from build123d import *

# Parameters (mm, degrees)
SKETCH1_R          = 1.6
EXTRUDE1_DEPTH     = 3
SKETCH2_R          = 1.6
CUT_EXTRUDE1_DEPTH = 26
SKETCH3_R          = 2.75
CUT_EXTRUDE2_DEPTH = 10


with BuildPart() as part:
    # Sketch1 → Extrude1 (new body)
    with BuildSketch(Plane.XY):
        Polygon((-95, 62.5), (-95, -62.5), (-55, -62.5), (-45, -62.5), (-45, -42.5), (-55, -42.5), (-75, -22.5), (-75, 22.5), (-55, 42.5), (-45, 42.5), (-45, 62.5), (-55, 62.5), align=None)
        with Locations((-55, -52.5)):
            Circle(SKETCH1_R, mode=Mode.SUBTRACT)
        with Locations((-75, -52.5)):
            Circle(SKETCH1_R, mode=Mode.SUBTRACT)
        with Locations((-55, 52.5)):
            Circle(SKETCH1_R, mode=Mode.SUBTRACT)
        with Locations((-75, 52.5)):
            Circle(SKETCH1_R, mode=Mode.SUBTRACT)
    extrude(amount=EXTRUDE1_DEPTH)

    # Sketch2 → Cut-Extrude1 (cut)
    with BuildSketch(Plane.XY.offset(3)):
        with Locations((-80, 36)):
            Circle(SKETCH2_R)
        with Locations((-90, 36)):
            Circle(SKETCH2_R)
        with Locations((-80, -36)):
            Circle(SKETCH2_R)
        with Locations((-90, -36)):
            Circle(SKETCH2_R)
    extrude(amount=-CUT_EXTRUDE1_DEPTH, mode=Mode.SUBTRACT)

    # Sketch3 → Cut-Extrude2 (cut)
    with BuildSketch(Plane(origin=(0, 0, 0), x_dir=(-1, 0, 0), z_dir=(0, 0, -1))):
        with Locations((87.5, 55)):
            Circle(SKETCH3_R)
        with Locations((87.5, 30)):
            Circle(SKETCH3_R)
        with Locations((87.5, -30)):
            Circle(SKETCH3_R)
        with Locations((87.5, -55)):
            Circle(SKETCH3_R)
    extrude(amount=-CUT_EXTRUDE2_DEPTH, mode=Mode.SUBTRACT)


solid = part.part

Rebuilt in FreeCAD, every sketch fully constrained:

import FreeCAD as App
import Part
import Sketcher


def add_polygon(sketch, points):
    """Adds a closed chain of lines whose ends are joined by coincident constraints."""
    first, n = sketch.GeometryCount, len(points)
    for a, b in zip(points, points[1:] + points[:1]):
        sketch.addGeometry(Part.LineSegment(App.Vector(*a, 0), App.Vector(*b, 0)), False)
    for i in range(n):
        sketch.addConstraint(Sketcher.Constraint("Coincident", first + i, 2, first + (i + 1) % n, 1))

doc = App.newDocument("Part")
body = doc.addObject("PartDesign::Body", "Body")

# Sketch on XY plane
sketch1 = doc.addObject("Sketcher::SketchObject", "Sketch")
body.addObject(sketch1)
sketch1.AttachmentSupport = (doc.XY_Plane, [""])
sketch1.MapMode = "FlatFace"
add_polygon(sketch1, [(-95, 62.5), (-95, -62.5), (-45, -62.5), (-45, -42.5), (-55, -42.5), (-75, -22.5), (-75, 22.5), (-55, 42.5), (-45, 42.5), (-45, 62.5)])  # lines 0-9
sketch1.addGeometry(Part.Circle(App.Vector(-75, -52.5, 0), App.Vector(0, 0, 1), 1.6), False)  # 10
sketch1.addGeometry(Part.Circle(App.Vector(-55, -52.5, 0), App.Vector(0, 0, 1), 1.6), False)  # 11
sketch1.addGeometry(Part.Circle(App.Vector(-75, 52.5, 0), App.Vector(0, 0, 1), 1.6), False)  # 12
sketch1.addGeometry(Part.Circle(App.Vector(-55, 52.5, 0), App.Vector(0, 0, 1), 1.6), False)  # 13
sketch1.addConstraint([
    Sketcher.Constraint("Vertical", 0),
    Sketcher.Constraint("Horizontal", 1),
    Sketcher.Constraint("Vertical", 2),
    Sketcher.Constraint("Horizontal", 3),
    Sketcher.Constraint("Vertical", 5),
    Sketcher.Constraint("Horizontal", 7),
    Sketcher.Constraint("Vertical", 8),
    Sketcher.Constraint("Horizontal", 9),
    Sketcher.Constraint("Equal", 10, 11),
    Sketcher.Constraint("Equal", 11, 12),
    Sketcher.Constraint("Equal", 12, 13),
    Sketcher.Constraint("Symmetric", 10, 3, 12, 3, -1),
    Sketcher.Constraint("Symmetric", 11, 3, 13, 3, -1),
    Sketcher.Constraint("Symmetric", 3, 2, 6, 2, -1),
    Sketcher.Constraint("Symmetric", 1, 2, 8, 2, -1),
    Sketcher.Constraint("Perpendicular", 4, 6),
    Sketcher.Constraint("Horizontal", 10, 3, 11, 3),
    Sketcher.Constraint("Vertical", 13, 3, 3, 2),
    Sketcher.Constraint("Vertical", 12, 3, 4, 2),
    Sketcher.Constraint("Equal", 4, 6),
    Sketcher.Constraint("Diameter", 10, 3.2),
    Sketcher.Constraint("DistanceX", 1, 1, 1, 2, 50.0),
    Sketcher.Constraint("DistanceX", 3, 2, 3, 1, 10.0),
    Sketcher.Constraint("DistanceY", 0, 2, 0, 1, 125.0),
    Sketcher.Constraint("DistanceY", 2, 1, 2, 2, 20.0),
    Sketcher.Constraint("DistanceY", 5, 1, 5, 2, 45.0),
    Sketcher.Constraint("DistanceX", 10, 3, -1, 1, 75.0),
    Sketcher.Constraint("DistanceY", 10, 3, 12, 3, 105.0),
])
pad1 = doc.addObject("PartDesign::Pad", "Pad")
body.addObject(pad1)
pad1.Profile = sketch1
pad1.Length = 3

# Sketch on XY plane
sketch2 = doc.addObject("Sketcher::SketchObject", "Sketch001")
body.addObject(sketch2)
sketch2.AttachmentSupport = (doc.XY_Plane, [""])
sketch2.MapMode = "FlatFace"
sketch2.AttachmentOffset = App.Placement(App.Vector(0, 0, 3), App.Rotation())
sketch2.addGeometry([
    Part.Circle(App.Vector(-80, 36, 0), App.Vector(0, 0, 1), 1.6),
    Part.Circle(App.Vector(-90, 36, 0), App.Vector(0, 0, 1), 1.6),
    Part.Circle(App.Vector(-80, -36, 0), App.Vector(0, 0, 1), 1.6),
    Part.Circle(App.Vector(-90, -36, 0), App.Vector(0, 0, 1), 1.6),
], False)
sketch2.addConstraint([
    Sketcher.Constraint("Equal", 0, 1),
    Sketcher.Constraint("Equal", 1, 2),
    Sketcher.Constraint("Equal", 2, 3),
    Sketcher.Constraint("Symmetric", 0, 3, 2, 3, -1),
    Sketcher.Constraint("Symmetric", 1, 3, 3, 3, -1),
    Sketcher.Constraint("Horizontal", 0, 3, 1, 3),
    Sketcher.Constraint("Diameter", 0, 3.2),
    Sketcher.Constraint("DistanceX", 0, 3, -1, 1, 80.0),
    Sketcher.Constraint("DistanceY", -1, 1, 0, 3, 36.0),
    Sketcher.Constraint("DistanceX", 1, 3, -1, 1, 90.0),
])
pocket1 = doc.addObject("PartDesign::Pocket", "Pocket")
body.addObject(pocket1)
pocket1.Profile = sketch2
pocket1.Length = 26

# Sketch on XY plane
sketch3 = doc.addObject("Sketcher::SketchObject", "Sketch002")
body.addObject(sketch3)
sketch3.AttachmentSupport = (doc.XY_Plane, [""])
sketch3.MapMode = "FlatFace"
sketch3.addGeometry([
    Part.Circle(App.Vector(-87.5, 55, 0), App.Vector(0, 0, 1), 2.75),
    Part.Circle(App.Vector(-87.5, 30, 0), App.Vector(0, 0, 1), 2.75),
    Part.Circle(App.Vector(-87.5, -30, 0), App.Vector(0, 0, 1), 2.75),
    Part.Circle(App.Vector(-87.5, -55, 0), App.Vector(0, 0, 1), 2.75),
], False)
sketch3.addConstraint([
    Sketcher.Constraint("Equal", 0, 1),
    Sketcher.Constraint("Equal", 1, 2),
    Sketcher.Constraint("Equal", 2, 3),
    Sketcher.Constraint("Symmetric", 1, 3, 2, 3, -1),
    Sketcher.Constraint("Symmetric", 0, 3, 3, 3, -1),
    Sketcher.Constraint("Vertical", 0, 3, 1, 3),
    Sketcher.Constraint("Diameter", 0, 5.5),
    Sketcher.Constraint("DistanceY", -1, 1, 0, 3, 55.0),
    Sketcher.Constraint("DistanceY", -1, 1, 1, 3, 30.0),
    Sketcher.Constraint("DistanceX", 0, 3, -1, 1, 87.5),
])
pocket2 = doc.addObject("PartDesign::Pocket", "Pocket001")
body.addObject(pocket2)
pocket2.Profile = sketch3
pocket2.Length = 10
pocket2.Reversed = True

doc.recompute()
